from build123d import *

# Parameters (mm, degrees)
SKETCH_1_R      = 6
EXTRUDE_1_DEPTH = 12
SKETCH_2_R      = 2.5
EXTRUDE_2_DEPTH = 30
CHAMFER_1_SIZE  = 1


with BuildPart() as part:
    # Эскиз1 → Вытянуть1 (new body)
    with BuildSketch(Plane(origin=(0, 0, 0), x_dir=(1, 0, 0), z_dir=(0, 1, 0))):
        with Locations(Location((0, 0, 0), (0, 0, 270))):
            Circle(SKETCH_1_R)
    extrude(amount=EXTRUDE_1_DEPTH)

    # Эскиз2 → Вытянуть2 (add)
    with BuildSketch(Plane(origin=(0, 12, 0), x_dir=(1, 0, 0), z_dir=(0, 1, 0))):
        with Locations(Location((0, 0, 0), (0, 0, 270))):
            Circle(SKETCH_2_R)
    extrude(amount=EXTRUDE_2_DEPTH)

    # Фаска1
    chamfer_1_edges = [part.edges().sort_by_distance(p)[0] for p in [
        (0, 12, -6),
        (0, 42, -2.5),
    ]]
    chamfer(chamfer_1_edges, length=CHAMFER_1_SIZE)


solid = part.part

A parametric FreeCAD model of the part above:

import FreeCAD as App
import Part
import Sketcher

V = App.Vector
Q = App.Units.Quantity


def edges_at(feature, points):
    """Names of the edges that pass closest to the given points."""
    edges = feature.Shape.Edges
    near = lambda p: min(range(len(edges)), key=lambda i: edges[i].distToShape(Part.Vertex(*p))[0])
    return sorted({f"Edge{near(p) + 1}" for p in points})

doc = App.newDocument("Part")
body = doc.addObject("PartDesign::Body", "Body")

# Sketch on XZ plane
sketch1 = body.newObject("Sketcher::SketchObject", "Sketch")
sketch1.AttachmentSupport = (doc.getObject("XZ_Plane"), [""])
sketch1.MapMode = "FlatFace"
sketch1.addGeometry(Part.Circle(V(0, 0, 0), V(0, 0, 1), 6), False)
sketch1.addConstraint([
    Sketcher.Constraint("Coincident", 0, 3, -1, 1),
    Sketcher.Constraint("Diameter", 0, Q("12 mm")),
])
pad1 = body.newObject("PartDesign::Pad", "Pad")
pad1.Profile = sketch1
pad1.Length = 12
pad1.Reversed = True

# Sketch on XZ plane
sketch2 = body.newObject("Sketcher::SketchObject", "Sketch001")
sketch2.AttachmentSupport = (doc.getObject("XZ_Plane"), [""])
sketch2.MapMode = "FlatFace"
sketch2.AttachmentOffset = App.Placement(V(0, 0, -12), App.Rotation())
sketch2.addGeometry(Part.Circle(V(0, 0, 0), V(0, 0, 1), 2.5), False)
sketch2.addConstraint([
    Sketcher.Constraint("Coincident", 0, 3, -1, 1),
    Sketcher.Constraint("Diameter", 0, Q("5 mm")),
])
pad2 = body.newObject("PartDesign::Pad", "Pad001")
pad2.Profile = sketch2
pad2.Length = 30
pad2.Reversed = True
doc.recompute()

chamfer = body.newObject("PartDesign::Chamfer", "Chamfer")
chamfer.Base = (pad2, edges_at(pad2, [(0, 12, -6), (0, 42, -2.5)]))
chamfer.Size = 1

doc.recompute()
